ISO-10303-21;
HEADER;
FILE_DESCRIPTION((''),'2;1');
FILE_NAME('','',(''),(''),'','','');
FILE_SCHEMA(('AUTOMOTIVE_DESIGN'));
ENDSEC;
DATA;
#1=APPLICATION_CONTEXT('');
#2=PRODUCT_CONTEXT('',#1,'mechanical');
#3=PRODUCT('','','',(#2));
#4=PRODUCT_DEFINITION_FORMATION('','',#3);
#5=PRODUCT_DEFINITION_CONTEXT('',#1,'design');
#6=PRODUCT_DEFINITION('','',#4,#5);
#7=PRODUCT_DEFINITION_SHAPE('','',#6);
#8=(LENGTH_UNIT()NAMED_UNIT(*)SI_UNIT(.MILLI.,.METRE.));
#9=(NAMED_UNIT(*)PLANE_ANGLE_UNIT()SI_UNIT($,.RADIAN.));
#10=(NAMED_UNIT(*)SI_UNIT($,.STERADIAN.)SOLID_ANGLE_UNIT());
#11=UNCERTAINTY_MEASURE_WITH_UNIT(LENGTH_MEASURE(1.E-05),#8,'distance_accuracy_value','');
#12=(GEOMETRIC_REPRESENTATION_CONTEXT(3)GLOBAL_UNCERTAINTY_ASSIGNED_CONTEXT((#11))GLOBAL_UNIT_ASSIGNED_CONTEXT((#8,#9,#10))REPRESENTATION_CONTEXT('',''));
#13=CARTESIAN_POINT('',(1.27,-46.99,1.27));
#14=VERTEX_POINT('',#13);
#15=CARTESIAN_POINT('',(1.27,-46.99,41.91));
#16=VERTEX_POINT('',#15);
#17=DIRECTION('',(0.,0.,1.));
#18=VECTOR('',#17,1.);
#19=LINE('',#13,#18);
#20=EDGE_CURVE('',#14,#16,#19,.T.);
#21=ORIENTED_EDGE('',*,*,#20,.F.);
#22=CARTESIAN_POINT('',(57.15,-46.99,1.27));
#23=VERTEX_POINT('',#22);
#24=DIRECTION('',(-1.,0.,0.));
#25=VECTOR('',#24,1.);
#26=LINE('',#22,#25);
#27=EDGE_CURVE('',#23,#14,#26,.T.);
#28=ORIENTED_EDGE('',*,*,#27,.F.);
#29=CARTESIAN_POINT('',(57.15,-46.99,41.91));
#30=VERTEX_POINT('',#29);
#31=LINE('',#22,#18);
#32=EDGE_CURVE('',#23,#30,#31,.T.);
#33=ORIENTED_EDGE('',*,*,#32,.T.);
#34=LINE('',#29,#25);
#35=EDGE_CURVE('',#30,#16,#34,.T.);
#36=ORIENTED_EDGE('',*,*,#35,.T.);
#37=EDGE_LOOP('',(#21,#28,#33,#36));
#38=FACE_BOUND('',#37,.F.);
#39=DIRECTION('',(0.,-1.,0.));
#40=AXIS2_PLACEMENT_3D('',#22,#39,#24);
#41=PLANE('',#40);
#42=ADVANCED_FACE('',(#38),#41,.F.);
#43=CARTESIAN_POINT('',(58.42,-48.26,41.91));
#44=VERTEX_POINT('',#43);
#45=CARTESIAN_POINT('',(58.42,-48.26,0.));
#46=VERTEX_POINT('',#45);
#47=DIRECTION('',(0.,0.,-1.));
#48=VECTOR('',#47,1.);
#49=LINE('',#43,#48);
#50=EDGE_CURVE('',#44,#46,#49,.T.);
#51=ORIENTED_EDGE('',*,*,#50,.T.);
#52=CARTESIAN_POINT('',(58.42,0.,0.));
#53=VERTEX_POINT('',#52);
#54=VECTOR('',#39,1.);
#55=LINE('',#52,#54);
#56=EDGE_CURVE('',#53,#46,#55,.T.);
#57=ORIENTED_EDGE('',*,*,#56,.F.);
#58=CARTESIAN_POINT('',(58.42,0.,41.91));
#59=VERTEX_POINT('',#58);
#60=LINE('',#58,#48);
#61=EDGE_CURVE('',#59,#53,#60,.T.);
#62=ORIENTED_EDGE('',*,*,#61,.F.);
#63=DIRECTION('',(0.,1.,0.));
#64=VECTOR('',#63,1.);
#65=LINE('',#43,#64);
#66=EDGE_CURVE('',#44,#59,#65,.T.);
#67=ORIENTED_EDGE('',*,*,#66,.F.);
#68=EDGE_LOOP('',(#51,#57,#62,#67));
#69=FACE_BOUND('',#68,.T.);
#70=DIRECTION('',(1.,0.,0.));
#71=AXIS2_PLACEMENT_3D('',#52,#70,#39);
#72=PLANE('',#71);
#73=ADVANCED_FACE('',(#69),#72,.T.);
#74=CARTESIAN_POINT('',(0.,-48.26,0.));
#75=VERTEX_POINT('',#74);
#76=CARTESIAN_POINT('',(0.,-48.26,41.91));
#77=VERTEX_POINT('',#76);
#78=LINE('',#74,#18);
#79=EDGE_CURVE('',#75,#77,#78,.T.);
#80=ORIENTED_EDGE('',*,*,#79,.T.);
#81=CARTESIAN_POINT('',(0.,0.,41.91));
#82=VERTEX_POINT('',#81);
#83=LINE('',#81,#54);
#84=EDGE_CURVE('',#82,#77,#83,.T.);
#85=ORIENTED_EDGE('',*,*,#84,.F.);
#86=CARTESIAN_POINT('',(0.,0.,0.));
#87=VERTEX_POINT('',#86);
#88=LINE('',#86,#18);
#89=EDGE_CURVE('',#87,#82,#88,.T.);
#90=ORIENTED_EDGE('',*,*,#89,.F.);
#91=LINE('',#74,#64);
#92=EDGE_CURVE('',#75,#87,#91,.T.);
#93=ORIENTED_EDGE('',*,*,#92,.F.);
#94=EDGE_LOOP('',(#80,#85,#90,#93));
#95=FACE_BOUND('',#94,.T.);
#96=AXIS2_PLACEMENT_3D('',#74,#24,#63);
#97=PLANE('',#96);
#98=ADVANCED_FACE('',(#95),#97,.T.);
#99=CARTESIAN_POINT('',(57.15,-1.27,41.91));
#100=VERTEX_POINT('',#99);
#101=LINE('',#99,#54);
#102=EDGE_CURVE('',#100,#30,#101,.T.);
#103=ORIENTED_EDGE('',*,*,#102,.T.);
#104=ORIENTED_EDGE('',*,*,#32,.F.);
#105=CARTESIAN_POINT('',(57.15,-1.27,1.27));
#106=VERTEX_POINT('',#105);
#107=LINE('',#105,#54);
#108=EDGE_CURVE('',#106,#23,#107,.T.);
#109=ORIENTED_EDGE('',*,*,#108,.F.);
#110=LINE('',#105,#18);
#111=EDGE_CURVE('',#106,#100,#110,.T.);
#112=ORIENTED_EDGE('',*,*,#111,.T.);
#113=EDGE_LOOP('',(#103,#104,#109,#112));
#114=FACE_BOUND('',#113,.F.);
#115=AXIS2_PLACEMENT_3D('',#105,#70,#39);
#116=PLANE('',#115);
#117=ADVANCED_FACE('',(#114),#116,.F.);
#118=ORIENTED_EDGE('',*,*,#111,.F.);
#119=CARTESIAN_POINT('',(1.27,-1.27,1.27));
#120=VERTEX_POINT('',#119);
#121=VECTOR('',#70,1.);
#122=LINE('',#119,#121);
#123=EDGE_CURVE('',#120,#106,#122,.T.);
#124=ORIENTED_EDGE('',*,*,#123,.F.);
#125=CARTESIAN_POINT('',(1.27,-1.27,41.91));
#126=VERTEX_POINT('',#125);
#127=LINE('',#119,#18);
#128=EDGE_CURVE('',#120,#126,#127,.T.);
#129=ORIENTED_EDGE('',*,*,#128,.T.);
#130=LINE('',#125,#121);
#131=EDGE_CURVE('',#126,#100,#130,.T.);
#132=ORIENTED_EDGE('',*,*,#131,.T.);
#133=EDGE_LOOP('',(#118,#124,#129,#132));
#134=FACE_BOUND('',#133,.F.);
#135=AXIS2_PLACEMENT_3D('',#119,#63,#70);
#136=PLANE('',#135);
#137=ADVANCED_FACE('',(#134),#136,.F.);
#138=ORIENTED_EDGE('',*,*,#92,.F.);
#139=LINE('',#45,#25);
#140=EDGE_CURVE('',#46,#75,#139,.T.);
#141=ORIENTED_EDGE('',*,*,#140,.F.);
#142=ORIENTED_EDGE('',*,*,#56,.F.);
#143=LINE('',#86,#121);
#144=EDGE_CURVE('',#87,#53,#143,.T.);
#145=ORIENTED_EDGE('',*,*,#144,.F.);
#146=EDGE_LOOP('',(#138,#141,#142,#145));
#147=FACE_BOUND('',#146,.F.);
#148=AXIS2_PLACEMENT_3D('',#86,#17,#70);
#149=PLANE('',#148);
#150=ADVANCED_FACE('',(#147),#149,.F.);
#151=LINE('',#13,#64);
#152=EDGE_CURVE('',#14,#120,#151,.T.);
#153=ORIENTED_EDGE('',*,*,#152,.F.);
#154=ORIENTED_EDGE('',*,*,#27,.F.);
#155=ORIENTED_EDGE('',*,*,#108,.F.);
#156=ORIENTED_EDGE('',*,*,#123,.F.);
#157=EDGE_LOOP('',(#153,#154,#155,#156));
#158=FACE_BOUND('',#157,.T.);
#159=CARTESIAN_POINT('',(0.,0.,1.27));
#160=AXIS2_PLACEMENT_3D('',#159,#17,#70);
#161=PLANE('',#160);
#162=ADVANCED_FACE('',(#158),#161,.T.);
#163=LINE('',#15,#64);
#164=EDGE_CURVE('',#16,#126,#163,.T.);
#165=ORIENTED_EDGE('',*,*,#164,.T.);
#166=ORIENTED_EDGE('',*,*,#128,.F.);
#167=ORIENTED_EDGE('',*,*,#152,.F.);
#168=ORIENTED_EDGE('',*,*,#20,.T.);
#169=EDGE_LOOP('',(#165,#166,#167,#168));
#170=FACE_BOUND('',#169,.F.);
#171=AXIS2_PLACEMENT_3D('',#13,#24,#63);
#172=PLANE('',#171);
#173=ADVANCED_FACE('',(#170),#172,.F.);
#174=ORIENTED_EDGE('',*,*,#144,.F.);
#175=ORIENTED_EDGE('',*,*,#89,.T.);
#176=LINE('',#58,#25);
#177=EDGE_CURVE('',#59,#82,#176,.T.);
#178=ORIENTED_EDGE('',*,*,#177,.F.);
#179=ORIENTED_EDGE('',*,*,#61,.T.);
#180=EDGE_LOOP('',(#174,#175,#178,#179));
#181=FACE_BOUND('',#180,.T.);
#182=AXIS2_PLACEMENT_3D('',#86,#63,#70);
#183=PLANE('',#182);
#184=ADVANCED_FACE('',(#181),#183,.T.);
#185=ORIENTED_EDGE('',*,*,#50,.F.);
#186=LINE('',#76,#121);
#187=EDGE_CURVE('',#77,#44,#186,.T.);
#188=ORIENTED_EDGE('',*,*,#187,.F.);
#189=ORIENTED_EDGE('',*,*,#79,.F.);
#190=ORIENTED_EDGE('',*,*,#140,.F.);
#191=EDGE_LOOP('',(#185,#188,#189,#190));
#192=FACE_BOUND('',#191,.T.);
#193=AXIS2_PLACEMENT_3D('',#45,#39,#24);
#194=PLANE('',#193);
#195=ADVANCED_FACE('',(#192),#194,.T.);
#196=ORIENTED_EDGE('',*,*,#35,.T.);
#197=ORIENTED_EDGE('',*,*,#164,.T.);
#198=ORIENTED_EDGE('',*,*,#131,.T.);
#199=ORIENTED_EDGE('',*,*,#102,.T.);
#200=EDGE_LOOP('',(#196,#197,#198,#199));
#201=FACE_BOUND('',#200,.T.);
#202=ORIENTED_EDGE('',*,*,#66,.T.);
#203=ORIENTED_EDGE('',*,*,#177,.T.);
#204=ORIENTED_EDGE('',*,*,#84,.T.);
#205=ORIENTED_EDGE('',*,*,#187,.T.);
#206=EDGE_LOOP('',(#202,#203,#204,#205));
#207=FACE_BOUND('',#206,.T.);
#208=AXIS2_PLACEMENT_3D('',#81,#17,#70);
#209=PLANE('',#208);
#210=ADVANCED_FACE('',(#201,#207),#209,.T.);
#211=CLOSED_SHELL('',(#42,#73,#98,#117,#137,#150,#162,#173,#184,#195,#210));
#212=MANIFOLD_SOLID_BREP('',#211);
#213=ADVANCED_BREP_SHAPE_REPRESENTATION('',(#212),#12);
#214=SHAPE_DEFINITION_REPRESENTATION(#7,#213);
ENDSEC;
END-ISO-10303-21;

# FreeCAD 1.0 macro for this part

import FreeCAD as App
import Part
import Sketcher
Q = App.Units.Quantity

doc = App.newDocument("Part")
body = doc.addObject("PartDesign::Body", "Body")

# Sketch on XY plane
sketch1 = doc.addObject("Sketcher::SketchObject", "Sketch")
body.addObject(sketch1)
sketch1.AttachmentSupport = (doc.XY_Plane, [""])
sketch1.MapMode = "FlatFace"
sketch1.addGeometry([
    Part.LineSegment(App.Vector(58.42, 0, 0), App.Vector(0, 0, 0)),
    Part.LineSegment(App.Vector(0, 0, 0), App.Vector(0, -48.26, 0)),
    Part.LineSegment(App.Vector(0, -48.26, 0), App.Vector(58.42, -48.26, 0)),
    Part.LineSegment(App.Vector(58.42, -48.26, 0), App.Vector(58.42, 0, 0)),
], False)
sketch1.addConstraint([
    Sketcher.Constraint("Coincident", 0, 2, 1, 1),
    Sketcher.Constraint("Coincident", 1, 2, 2, 1),
    Sketcher.Constraint("Coincident", 2, 2, 3, 1),
    Sketcher.Constraint("Coincident", 3, 2, 0, 1),
    Sketcher.Constraint("Horizontal", 0),
    Sketcher.Constraint("Vertical", 1),
    Sketcher.Constraint("Horizontal", 2),
    Sketcher.Constraint("Vertical", 3),
    Sketcher.Constraint("Coincident", 0, 2, -1, 1),
    Sketcher.Constraint("DistanceX", 0, 2, 0, 1, Q("2.3 in")),
    Sketcher.Constraint("DistanceY", 1, 2, 1, 1, Q("1.9 in")),
])
pad1 = doc.addObject("PartDesign::Pad", "Pad")
body.addObject(pad1)
pad1.Profile = sketch1
pad1.Length = Q("0.05 in")

# Sketch on XY plane
sketch2 = doc.addObject("Sketcher::SketchObject", "Sketch001")
body.addObject(sketch2)
sketch2.AttachmentSupport = (doc.XY_Plane, [""])
sketch2.MapMode = "FlatFace"
sketch2.AttachmentOffset = App.Placement(App.Vector(0, 0, 0.05 * 25.4), App.Rotation())
sketch2.addGeometry([
    Part.LineSegment(App.Vector(58.42, -48.26, 0), App.Vector(58.42, 0, 0)),  # 0
    Part.LineSegment(App.Vector(58.42, 0, 0), App.Vector(0, 0, 0)),  # 1
    Part.LineSegment(App.Vector(0, 0, 0), App.Vector(0, -48.26, 0)),  # 2
    Part.LineSegment(App.Vector(0, -48.26, 0), App.Vector(58.42, -48.26, 0)),  # 3
    Part.LineSegment(App.Vector(1.27, -46.99, 0), App.Vector(1.27, -1.27, 0)),  # 4
    Part.LineSegment(App.Vector(1.27, -1.27, 0), App.Vector(57.15, -1.27, 0)),  # 5
    Part.LineSegment(App.Vector(57.15, -1.27, 0), App.Vector(57.15, -46.99, 0)),  # 6
    Part.LineSegment(App.Vector(57.15, -46.99, 0), App.Vector(1.27, -46.99, 0)),  # 7
], False)
sketch2.addConstraint([
    Sketcher.Constraint("Coincident", 0, 2, 1, 1),
    Sketcher.Constraint("Coincident", 1, 2, 2, 1),
    Sketcher.Constraint("Coincident", 2, 2, 3, 1),
    Sketcher.Constraint("Coincident", 3, 2, 0, 1),
    Sketcher.Constraint("Coincident", 4, 2, 5, 1),
    Sketcher.Constraint("Coincident", 5, 2, 6, 1),
    Sketcher.Constraint("Coincident", 6, 2, 7, 1),
    Sketcher.Constraint("Coincident", 7, 2, 4, 1),
    Sketcher.Constraint("Vertical", 0),
    Sketcher.Constraint("Horizontal", 1),
    Sketcher.Constraint("Vertical", 2),
    Sketcher.Constraint("Horizontal", 3),
    Sketcher.Constraint("Vertical", 4),
    Sketcher.Constraint("Horizontal", 5),
    Sketcher.Constraint("Vertical", 6),
    Sketcher.Constraint("Horizontal", 7),
    Sketcher.Constraint("Coincident", 1, 2, -1, 1),
    Sketcher.Constraint("DistanceX", -1, 1, 4, 2, Q("0.05 in")),
    Sketcher.Constraint("DistanceY", 4, 2, -1, 1, Q("0.05 in")),
    Sketcher.Constraint("DistanceX", 5, 2, 0, 2, Q("0.05 in")),
    Sketcher.Constraint("DistanceY", 3, 2, 6, 2, Q("0.05 in")),
    Sketcher.Constraint("DistanceX", 1, 2, 1, 1, Q("2.3 in")),
    Sketcher.Constraint("DistanceY", 0, 1, 0, 2, Q("1.9 in")),
])
pad2 = doc.addObject("PartDesign::Pad", "Pad001")
body.addObject(pad2)
pad2.Profile = sketch2
pad2.Length = Q("1.6 in")

doc.recompute()
